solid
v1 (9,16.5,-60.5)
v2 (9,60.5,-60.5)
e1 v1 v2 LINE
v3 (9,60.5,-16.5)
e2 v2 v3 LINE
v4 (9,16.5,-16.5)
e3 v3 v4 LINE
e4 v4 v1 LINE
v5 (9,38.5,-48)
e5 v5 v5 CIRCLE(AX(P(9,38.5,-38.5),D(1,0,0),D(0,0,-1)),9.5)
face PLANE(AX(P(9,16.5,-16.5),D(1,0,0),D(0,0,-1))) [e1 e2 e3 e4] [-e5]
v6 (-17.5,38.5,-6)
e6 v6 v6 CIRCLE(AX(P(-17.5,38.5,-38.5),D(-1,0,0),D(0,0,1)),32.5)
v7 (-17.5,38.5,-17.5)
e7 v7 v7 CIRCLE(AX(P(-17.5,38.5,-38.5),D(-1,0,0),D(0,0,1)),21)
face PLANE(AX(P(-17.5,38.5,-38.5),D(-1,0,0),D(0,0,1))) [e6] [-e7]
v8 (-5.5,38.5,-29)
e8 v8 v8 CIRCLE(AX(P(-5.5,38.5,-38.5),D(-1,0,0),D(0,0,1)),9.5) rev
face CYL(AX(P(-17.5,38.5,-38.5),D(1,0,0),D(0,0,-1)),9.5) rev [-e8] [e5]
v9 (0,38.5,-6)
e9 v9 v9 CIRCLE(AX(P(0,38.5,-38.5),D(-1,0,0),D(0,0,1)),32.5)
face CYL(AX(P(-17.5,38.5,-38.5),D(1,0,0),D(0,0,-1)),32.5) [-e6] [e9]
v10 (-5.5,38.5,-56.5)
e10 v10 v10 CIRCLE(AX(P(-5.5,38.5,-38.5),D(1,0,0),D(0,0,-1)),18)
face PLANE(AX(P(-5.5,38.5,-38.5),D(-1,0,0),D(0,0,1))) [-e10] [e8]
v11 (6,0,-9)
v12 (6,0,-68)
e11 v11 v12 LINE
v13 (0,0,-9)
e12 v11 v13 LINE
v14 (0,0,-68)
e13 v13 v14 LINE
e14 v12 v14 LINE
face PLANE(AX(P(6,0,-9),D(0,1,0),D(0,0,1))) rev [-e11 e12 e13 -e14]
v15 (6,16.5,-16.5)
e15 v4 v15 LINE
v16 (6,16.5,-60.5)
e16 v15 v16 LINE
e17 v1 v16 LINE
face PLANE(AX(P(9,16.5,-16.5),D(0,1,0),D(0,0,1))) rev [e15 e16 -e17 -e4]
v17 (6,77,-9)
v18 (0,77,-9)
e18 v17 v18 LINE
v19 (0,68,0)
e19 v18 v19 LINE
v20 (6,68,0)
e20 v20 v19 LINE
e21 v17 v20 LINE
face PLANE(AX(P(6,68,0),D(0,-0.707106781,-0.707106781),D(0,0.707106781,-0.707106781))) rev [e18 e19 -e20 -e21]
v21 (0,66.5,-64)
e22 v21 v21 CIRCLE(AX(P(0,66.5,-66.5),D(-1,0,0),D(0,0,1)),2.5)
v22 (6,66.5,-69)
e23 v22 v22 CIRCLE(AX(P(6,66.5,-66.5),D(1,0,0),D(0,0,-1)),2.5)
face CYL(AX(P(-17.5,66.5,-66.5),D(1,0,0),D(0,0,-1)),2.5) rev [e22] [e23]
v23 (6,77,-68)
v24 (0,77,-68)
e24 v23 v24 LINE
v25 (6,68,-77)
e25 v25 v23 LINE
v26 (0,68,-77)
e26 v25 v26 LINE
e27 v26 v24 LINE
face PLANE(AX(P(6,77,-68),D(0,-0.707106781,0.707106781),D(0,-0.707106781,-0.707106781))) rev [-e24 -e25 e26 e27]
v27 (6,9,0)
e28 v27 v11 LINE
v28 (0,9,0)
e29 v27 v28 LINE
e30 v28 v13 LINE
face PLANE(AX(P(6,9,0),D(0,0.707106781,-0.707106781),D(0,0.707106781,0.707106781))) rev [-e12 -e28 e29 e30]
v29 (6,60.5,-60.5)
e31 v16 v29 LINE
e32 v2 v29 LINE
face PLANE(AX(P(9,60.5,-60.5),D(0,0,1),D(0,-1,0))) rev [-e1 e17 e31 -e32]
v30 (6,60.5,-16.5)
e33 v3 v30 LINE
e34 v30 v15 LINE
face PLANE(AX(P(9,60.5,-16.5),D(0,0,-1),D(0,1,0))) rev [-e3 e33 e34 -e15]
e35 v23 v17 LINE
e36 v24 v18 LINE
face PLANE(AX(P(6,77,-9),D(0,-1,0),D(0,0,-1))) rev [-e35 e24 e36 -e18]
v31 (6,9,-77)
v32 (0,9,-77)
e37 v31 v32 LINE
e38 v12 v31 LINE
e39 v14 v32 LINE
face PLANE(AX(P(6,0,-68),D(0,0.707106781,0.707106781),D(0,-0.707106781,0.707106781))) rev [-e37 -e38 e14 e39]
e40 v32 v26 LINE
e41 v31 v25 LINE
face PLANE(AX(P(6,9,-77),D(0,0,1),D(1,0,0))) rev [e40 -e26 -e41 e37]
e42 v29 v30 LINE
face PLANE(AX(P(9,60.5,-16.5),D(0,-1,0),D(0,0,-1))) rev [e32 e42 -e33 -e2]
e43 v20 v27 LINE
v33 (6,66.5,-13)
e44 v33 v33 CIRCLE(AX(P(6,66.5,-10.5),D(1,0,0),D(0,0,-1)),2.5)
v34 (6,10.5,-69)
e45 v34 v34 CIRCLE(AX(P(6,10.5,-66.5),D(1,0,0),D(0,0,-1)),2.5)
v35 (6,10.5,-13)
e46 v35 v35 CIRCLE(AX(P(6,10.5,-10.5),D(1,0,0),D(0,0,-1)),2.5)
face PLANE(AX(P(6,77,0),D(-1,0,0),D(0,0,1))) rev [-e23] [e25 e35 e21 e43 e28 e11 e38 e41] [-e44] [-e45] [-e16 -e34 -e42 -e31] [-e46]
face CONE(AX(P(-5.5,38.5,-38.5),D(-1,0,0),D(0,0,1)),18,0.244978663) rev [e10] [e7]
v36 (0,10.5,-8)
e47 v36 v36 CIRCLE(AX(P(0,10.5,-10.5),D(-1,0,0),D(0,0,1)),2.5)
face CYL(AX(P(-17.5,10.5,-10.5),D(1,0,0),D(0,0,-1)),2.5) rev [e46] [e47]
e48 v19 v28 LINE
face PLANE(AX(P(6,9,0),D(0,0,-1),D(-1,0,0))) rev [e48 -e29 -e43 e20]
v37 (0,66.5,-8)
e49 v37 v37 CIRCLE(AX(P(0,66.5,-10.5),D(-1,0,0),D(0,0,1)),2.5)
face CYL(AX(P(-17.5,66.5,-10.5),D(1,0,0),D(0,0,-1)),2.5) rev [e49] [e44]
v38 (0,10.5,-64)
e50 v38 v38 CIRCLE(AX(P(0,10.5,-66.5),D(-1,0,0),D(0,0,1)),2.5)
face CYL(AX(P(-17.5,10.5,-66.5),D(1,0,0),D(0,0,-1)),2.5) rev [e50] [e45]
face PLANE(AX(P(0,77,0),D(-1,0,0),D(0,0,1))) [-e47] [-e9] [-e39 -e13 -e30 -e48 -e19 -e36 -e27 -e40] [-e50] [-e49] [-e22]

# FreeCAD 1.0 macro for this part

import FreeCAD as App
import Part
import Sketcher
from FreeCAD import Vector


def add_polygon(sketch, points):
    """Adds a closed chain of lines whose ends are joined by coincident constraints."""
    first, n = sketch.GeometryCount, len(points)
    for a, b in zip(points, points[1:] + points[:1]):
        sketch.addGeometry(Part.LineSegment(App.Vector(*a, 0), App.Vector(*b, 0)), False)
    for i in range(n):
        sketch.addConstraint(Sketcher.Constraint("Coincident", first + i, 2, first + (i + 1) % n, 1))

doc = App.newDocument("Part")
body = doc.addObject("PartDesign::Body", "Body")

# Sketch on YZ plane
sketch1 = body.newObject("Sketcher::SketchObject", "Sketch")
sketch1.AttachmentSupport = (doc.getObject("YZ_Plane"), [""])
sketch1.MapMode = "FlatFace"
add_polygon(sketch1, [(77, -9), (68, 0), (9, 0), (0, -9), (0, -68), (9, -77), (68, -77), (77, -68)])  # lines 0-7
sketch1.addConstraint(Sketcher.Constraint("Horizontal", 1))
sketch1.addConstraint(Sketcher.Constraint("Vertical", 3))
sketch1.addConstraint(Sketcher.Constraint("Horizontal", 5))
sketch1.addConstraint(Sketcher.Constraint("Vertical", 7))
sketch1.addConstraint(Sketcher.Constraint("PointOnObject", 0, 2, -1))
sketch1.addConstraint(Sketcher.Constraint("PointOnObject", 2, 2, -2))
sketch1.addConstraint(Sketcher.Constraint("Perpendicular", 0, 2))
sketch1.addConstraint(Sketcher.Constraint("Perpendicular", 2, 4))
sketch1.addConstraint(Sketcher.Constraint("Perpendicular", 4, 6))
sketch1.addConstraint(Sketcher.Constraint("Horizontal", 3, 2, 6, 2))
sketch1.addConstraint(Sketcher.Constraint("Horizontal", 2, 2, 7, 2))
sketch1.addConstraint(Sketcher.Constraint("Vertical", 1, 2, 4, 2))
sketch1.addConstraint(Sketcher.Constraint("Vertical", 0, 2, 5, 2))
sketch1.addConstraint(Sketcher.Constraint("Equal", 5, 3))
sketch1.addConstraint(Sketcher.Constraint("DistanceX", 1, 2, 1, 1, 59.0))
sketch1.addConstraint(Sketcher.Constraint("DistanceX", -1, 1, 0, 2, 68.0))
pad1 = body.newObject("PartDesign::Pad", "Pad")
pad1.Profile = sketch1
pad1.Length = 6

# Sketch on YZ plane
sketch2 = body.newObject("Sketcher::SketchObject", "Sketch001")
sketch2.AttachmentSupport = (doc.getObject("YZ_Plane"), [""])
sketch2.MapMode = "FlatFace"
sketch2.AttachmentOffset = App.Placement(Vector(0, 0, 6), App.Rotation())
add_polygon(sketch2, [(60.5, -16.5), (16.5, -16.5), (16.5, -60.5), (60.5, -60.5)])  # lines 0-3
sketch2.addConstraint(Sketcher.Constraint("Horizontal", 0))
sketch2.addConstraint(Sketcher.Constraint("Vertical", 1))
sketch2.addConstraint(Sketcher.Constraint("Horizontal", 2))
sketch2.addConstraint(Sketcher.Constraint("Vertical", 3))
sketch2.addConstraint(Sketcher.Constraint("Equal", 2, 1))
sketch2.addConstraint(Sketcher.Constraint("DistanceX", 0, 2, 0, 1, 44.0))
sketch2.addConstraint(Sketcher.Constraint("DistanceX", -1, 1, 0, 2, 16.5))
sketch2.addConstraint(Sketcher.Constraint("DistanceY", 0, 2, -1, 1, 16.5))
pad2 = body.newObject("PartDesign::Pad", "Pad001")
pad2.Profile = sketch2
pad2.Length = 3

# Sketch on YZ plane
sketch3 = body.newObject("Sketcher::SketchObject", "Sketch002")
sketch3.AttachmentSupport = (doc.getObject("YZ_Plane"), [""])
sketch3.MapMode = "FlatFace"
sketch3.addGeometry(Part.Circle(Vector(38.5, -38.5, 0), Vector(0, 0, 1), 32.5), False)
sketch3.addConstraint(Sketcher.Constraint("Diameter", 0, 65.0))
sketch3.addConstraint(Sketcher.Constraint("DistanceX", -1, 1, 0, 3, 38.5))
sketch3.addConstraint(Sketcher.Constraint("DistanceY", 0, 3, -1, 1, 38.5))
pad3 = body.newObject("PartDesign::Pad", "Pad002")
pad3.Profile = sketch3
pad3.Length = 17.5
pad3.Reversed = True

# Sketch on YZ plane
sketch4 = body.newObject("Sketcher::SketchObject", "Sketch003")
sketch4.AttachmentSupport = (doc.getObject("YZ_Plane"), [""])
sketch4.MapMode = "FlatFace"
sketch4.AttachmentOffset = App.Placement(Vector(0, 0, 9), App.Rotation())
sketch4.addGeometry(Part.Circle(Vector(38.5, -38.5, 0), Vector(0, 0, 1), 9.5), False)
sketch4.addConstraint(Sketcher.Constraint("Diameter", 0, 19.0))
sketch4.addConstraint(Sketcher.Constraint("DistanceX", -1, 1, 0, 3, 38.5))
sketch4.addConstraint(Sketcher.Constraint("DistanceY", 0, 3, -1, 1, 38.5))
pocket1 = body.newObject("PartDesign::Pocket", "Pocket")
pocket1.Profile = sketch4
pocket1.Type = "ThroughAll"

# Sketch on YZ plane
sketch5 = body.newObject("Sketcher::SketchObject", "Sketch004")
sketch5.AttachmentSupport = (doc.getObject("YZ_Plane"), [""])
sketch5.MapMode = "FlatFace"
sketch5.AttachmentOffset = App.Placement(Vector(0, 0, -17.5), App.Rotation())
sketch5.addGeometry(Part.Circle(Vector(38.5, -38.5, 0), Vector(0, 0, 1), 21), False)
sketch5.addConstraint(Sketcher.Constraint("Diameter", 0, 42.0))
sketch5.addConstraint(Sketcher.Constraint("DistanceX", -1, 1, 0, 3, 38.5))
sketch5.addConstraint(Sketcher.Constraint("DistanceY", 0, 3, -1, 1, 38.5))
pocket2 = body.newObject("PartDesign::Pocket", "Pocket001")
pocket2.Profile = sketch5
pocket2.Length = 12
pocket2.Reversed = True

# Sketch on XZ plane
sketch6 = body.newObject("Sketcher::SketchObject", "Sketch005")
sketch6.AttachmentSupport = (doc.getObject("XZ_Plane"), [""])
sketch6.MapMode = "FlatFace"
sketch6.AttachmentOffset = App.Placement(Vector(0, 0, -38.5), App.Rotation())
add_polygon(sketch6, [(-5.5, -59.5), (-5.5, -56.5), (-17.5, -59.5)])  # lines 0-2
sketch6.addGeometry(Part.LineSegment(Vector(-5.5, -38.5, 0), Vector(-17.5, -38.5, 0)), True)  # axis
sketch6.addConstraint(Sketcher.Constraint("Vertical", 0))
sketch6.addConstraint(Sketcher.Constraint("Horizontal", 2))
sketch6.addConstraint(Sketcher.Constraint("Horizontal", 3))
sketch6.addConstraint(Sketcher.Constraint("Vertical", 2, 2, 3, 1))
sketch6.addConstraint(Sketcher.Constraint("Vertical", 1, 2, 3, 2))
sketch6.addConstraint(Sketcher.Constraint("DistanceX", 2, 1, 2, 2, 12.0))
sketch6.addConstraint(Sketcher.Constraint("DistanceY", 0, 1, 0, 2, 3.0))
sketch6.addConstraint(Sketcher.Constraint("DistanceY", 0, 2, 3, 1, 18.0))
sketch6.addConstraint(Sketcher.Constraint("DistanceX", 0, 2, -1, 1, 5.5))
sketch6.addConstraint(Sketcher.Constraint("DistanceY", 0, 2, -1, 1, 56.5))
revolution = body.newObject("PartDesign::Revolution", "Revolution")
revolution.Profile = sketch6
revolution.ReferenceAxis = (sketch6, ["Axis0"])
revolution.Angle = 360

# Sketch on YZ plane
sketch7 = body.newObject("Sketcher::SketchObject", "Sketch006")
sketch7.AttachmentSupport = (doc.getObject("YZ_Plane"), [""])
sketch7.MapMode = "FlatFace"
sketch7.AttachmentOffset = App.Placement(Vector(0, 0, 6), App.Rotation())
sketch7.addGeometry(Part.Circle(Vector(66.5, -10.5, 0), Vector(0, 0, 1), 2.5), False)
sketch7.addConstraint(Sketcher.Constraint("Diameter", 0, 5.0))
sketch7.addConstraint(Sketcher.Constraint("DistanceX", -1, 1, 0, 3, 66.5))
sketch7.addConstraint(Sketcher.Constraint("DistanceY", 0, 3, -1, 1, 10.5))
pocket3 = body.newObject("PartDesign::Pocket", "Pocket002")
pocket3.Profile = sketch7
pocket3.Type = "ThroughAll"
doc.recompute()

linearpattern = body.newObject("PartDesign::LinearPattern", "LinearPattern")
linearpattern.Originals = [pocket3]
linearpattern.Direction = (doc.getObject("Z_Axis"), [""])
linearpattern.Mode = "offset"
linearpattern.Offset = 56
linearpattern.Occurrences = 2
linearpattern.Reversed = True
body.Tip = linearpattern
doc.recompute()

linearpattern2 = body.newObject("PartDesign::LinearPattern", "LinearPattern001")
linearpattern2.Originals = [pocket3]
linearpattern2.Direction = (doc.getObject("Y_Axis"), [""])
linearpattern2.Mode = "offset"
linearpattern2.Offset = 56
linearpattern2.Occurrences = 2
linearpattern2.Reversed = True
body.Tip = linearpattern2

# Sketch on YZ plane
sketch8 = body.newObject("Sketcher::SketchObject", "Sketch007")
sketch8.AttachmentSupport = (doc.getObject("YZ_Plane"), [""])
sketch8.MapMode = "FlatFace"
sketch8.AttachmentOffset = App.Placement(Vector(0, 0, 6), App.Rotation())
sketch8.addGeometry(Part.Circle(Vector(10.5, -66.5, 0), Vector(0, 0, 1), 2.5), False)
sketch8.addConstraint(Sketcher.Constraint("Diameter", 0, 5.0))
sketch8.addConstraint(Sketcher.Constraint("DistanceX", -1, 1, 0, 3, 10.5))
sketch8.addConstraint(Sketcher.Constraint("DistanceY", 0, 3, -1, 1, 66.5))
pocket4 = body.newObject("PartDesign::Pocket", "Pocket003")
pocket4.Profile = sketch8
pocket4.Type = "ThroughAll"

doc.recompute()
